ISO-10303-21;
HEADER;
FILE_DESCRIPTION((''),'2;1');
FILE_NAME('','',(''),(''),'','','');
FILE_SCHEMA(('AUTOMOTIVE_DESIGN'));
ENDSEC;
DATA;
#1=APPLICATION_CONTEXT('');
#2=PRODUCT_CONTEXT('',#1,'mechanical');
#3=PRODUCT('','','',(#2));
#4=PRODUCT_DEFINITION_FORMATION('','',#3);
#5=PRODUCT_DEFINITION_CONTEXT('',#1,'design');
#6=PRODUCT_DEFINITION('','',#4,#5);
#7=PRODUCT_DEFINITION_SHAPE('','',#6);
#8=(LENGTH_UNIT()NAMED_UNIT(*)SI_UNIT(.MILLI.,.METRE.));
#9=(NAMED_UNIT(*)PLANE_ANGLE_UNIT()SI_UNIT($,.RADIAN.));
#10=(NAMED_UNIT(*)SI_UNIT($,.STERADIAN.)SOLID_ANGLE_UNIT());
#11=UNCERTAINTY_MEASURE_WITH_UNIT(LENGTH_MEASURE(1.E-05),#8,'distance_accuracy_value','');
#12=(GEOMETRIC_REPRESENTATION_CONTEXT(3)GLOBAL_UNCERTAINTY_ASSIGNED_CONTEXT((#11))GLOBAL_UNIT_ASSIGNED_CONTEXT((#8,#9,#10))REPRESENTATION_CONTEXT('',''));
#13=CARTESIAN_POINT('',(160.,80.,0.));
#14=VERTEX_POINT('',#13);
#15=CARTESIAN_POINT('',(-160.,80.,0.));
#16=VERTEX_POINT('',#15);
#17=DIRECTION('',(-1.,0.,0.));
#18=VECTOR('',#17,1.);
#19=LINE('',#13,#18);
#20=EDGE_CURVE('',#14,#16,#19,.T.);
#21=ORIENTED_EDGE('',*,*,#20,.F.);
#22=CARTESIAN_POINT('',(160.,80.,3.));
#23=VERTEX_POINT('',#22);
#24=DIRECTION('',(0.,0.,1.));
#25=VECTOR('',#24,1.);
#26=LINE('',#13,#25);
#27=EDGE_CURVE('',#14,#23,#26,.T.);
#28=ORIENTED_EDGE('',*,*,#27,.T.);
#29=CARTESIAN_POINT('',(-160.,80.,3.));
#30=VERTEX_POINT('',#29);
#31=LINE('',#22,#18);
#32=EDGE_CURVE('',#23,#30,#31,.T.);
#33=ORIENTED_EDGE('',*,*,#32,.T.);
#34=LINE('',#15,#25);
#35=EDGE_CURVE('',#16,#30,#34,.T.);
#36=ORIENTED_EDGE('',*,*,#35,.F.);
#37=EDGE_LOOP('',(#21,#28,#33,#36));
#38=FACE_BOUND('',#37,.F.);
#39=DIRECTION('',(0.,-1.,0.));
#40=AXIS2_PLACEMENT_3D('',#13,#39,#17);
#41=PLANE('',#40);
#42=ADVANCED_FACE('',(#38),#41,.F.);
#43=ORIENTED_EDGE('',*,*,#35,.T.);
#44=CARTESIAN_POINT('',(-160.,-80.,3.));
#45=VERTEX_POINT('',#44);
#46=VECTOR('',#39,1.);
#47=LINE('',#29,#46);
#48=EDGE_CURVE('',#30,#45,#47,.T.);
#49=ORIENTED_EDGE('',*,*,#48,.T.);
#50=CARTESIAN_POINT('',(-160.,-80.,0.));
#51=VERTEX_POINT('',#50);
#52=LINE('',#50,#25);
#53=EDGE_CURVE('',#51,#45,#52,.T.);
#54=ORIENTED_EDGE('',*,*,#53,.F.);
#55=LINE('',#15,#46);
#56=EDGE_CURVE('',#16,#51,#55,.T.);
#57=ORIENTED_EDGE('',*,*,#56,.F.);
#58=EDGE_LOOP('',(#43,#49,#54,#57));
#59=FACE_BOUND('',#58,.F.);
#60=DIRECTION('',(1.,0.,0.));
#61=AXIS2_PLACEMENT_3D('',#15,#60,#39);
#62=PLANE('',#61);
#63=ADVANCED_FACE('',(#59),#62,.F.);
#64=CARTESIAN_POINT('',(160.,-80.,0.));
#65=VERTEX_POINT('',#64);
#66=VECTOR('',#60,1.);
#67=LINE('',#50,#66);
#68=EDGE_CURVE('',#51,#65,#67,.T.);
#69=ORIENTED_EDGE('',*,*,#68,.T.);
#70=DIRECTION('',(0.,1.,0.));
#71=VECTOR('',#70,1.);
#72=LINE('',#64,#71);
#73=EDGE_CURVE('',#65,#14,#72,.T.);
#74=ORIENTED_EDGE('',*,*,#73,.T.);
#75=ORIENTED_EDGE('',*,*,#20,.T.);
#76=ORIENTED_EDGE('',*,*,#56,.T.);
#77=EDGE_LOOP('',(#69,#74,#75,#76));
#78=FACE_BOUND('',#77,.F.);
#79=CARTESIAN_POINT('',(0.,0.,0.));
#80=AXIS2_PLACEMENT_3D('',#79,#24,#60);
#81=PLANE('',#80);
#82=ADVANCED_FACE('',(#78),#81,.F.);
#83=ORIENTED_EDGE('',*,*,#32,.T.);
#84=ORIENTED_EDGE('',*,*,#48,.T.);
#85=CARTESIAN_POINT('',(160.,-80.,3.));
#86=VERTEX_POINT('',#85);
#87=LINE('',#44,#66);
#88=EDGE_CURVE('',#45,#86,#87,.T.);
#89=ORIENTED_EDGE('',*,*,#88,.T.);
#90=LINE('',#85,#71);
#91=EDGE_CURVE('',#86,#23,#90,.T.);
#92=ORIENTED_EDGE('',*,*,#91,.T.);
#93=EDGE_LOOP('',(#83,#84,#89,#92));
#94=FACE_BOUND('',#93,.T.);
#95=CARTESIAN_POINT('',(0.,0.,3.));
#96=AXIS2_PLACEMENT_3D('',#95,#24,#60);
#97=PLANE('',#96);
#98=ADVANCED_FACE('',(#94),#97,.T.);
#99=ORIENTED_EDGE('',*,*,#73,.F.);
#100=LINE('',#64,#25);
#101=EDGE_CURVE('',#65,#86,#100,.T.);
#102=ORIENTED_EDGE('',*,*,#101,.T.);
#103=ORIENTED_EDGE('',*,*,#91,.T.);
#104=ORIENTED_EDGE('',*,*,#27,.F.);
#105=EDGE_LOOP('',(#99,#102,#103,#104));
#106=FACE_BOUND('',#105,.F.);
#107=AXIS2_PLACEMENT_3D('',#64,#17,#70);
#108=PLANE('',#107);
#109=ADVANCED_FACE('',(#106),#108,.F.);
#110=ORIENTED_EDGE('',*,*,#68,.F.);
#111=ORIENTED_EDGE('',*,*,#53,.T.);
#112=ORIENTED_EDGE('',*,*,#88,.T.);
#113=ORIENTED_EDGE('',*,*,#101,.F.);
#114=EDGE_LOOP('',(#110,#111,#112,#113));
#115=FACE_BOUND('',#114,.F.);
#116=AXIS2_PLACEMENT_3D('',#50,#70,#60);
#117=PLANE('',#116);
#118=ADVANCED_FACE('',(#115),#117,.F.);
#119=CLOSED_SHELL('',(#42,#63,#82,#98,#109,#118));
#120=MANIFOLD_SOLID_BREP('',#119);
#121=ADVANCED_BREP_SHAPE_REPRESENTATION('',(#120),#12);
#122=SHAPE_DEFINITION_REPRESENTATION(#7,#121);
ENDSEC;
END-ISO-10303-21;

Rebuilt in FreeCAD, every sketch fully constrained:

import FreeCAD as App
import Part
import Sketcher


def add_polygon(sketch, points):
    """Adds a closed chain of lines whose ends are joined by coincident constraints."""
    first, n = sketch.GeometryCount, len(points)
    for a, b in zip(points, points[1:] + points[:1]):
        sketch.addGeometry(Part.LineSegment(App.Vector(*a, 0), App.Vector(*b, 0)), False)
    for i in range(n):
        sketch.addConstraint(Sketcher.Constraint("Coincident", first + i, 2, first + (i + 1) % n, 1))

doc = App.newDocument("Part")
body = doc.addObject("PartDesign::Body", "Body")

sketch1 = body.newObject("Sketcher::SketchObject", "Sketch")
sketch1.AttachmentSupport = (doc.getObject("XY_Plane"), [""])
sketch1.MapMode = "FlatFace"
add_polygon(sketch1, [(160, -80), (160, 80), (-160, 80), (-160, -80)])
sketch1.addConstraint(Sketcher.Constraint("Vertical", 0))
sketch1.addConstraint(Sketcher.Constraint("Horizontal", 1))
sketch1.addConstraint(Sketcher.Constraint("Vertical", 2))
sketch1.addConstraint(Sketcher.Constraint("Horizontal", 3))
sketch1.addConstraint(Sketcher.Constraint("Symmetric", 0, 2, 2, 2, -1, 1))
sketch1.addConstraint(Sketcher.Constraint("DistanceX", 1, 2, 1, 1, 320.0))
sketch1.addConstraint(Sketcher.Constraint("DistanceY", 0, 1, 0, 2, 160.0))
pad1 = body.newObject("PartDesign::Pad", "Pad")
pad1.Profile = sketch1
pad1.Length = 3

doc.recompute()
